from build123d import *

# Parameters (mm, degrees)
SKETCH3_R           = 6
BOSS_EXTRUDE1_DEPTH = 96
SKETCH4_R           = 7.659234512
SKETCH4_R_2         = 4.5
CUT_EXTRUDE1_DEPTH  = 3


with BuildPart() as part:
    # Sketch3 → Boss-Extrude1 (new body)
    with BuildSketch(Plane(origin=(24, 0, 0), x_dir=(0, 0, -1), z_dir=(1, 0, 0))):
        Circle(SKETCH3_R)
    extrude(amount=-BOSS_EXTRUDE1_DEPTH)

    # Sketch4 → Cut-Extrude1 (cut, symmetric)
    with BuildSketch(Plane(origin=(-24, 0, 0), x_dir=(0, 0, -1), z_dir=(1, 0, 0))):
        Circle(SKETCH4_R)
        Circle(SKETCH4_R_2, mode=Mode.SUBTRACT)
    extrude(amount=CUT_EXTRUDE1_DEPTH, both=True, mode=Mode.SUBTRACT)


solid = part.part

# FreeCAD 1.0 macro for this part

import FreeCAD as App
import Part
import Sketcher
from FreeCAD import Vector

doc = App.newDocument("Part")
body = doc.addObject("PartDesign::Body", "Body")

# Sketch on YZ plane
sketch1 = body.newObject("Sketcher::SketchObject", "Sketch")
sketch1.AttachmentSupport = (doc.getObject("YZ_Plane"), [""])
sketch1.MapMode = "FlatFace"
sketch1.AttachmentOffset = App.Placement(Vector(0, 0, 24), App.Rotation())
sketch1.addGeometry(Part.Circle(Vector(0, 0, 0), Vector(0, 0, 1), 6), False)
sketch1.addConstraint([
    Sketcher.Constraint("Coincident", 0, 3, -1, 1),
    Sketcher.Constraint("Diameter", 0, 12.0),
])
pad1 = body.newObject("PartDesign::Pad", "Pad")
pad1.Profile = sketch1
pad1.Length = 96
pad1.Reversed = True

# Sketch on YZ plane
sketch2 = body.newObject("Sketcher::SketchObject", "Sketch001")
sketch2.AttachmentSupport = (doc.getObject("YZ_Plane"), [""])
sketch2.MapMode = "FlatFace"
sketch2.AttachmentOffset = App.Placement(Vector(0, 0, -24), App.Rotation())
sketch2.addGeometry([
    Part.Circle(Vector(0, 0, 0), Vector(0, 0, 1), 7.7),
    Part.Circle(Vector(0, 0, 0), Vector(0, 0, 1), 4.5),
], False)
sketch2.addConstraint([
    Sketcher.Constraint("Coincident", 0, 3, -1, 1),
    Sketcher.Constraint("Coincident", 1, 3, -1, 1),
    Sketcher.Constraint("Diameter", 1, 9.0),
    Sketcher.Constraint("Diameter", 0, 15.318469),
])
pocket1 = body.newObject("PartDesign::Pocket", "Pocket")
pocket1.Profile = sketch2
pocket1.Length = 6
pocket1.Midplane = True

doc.recompute()
